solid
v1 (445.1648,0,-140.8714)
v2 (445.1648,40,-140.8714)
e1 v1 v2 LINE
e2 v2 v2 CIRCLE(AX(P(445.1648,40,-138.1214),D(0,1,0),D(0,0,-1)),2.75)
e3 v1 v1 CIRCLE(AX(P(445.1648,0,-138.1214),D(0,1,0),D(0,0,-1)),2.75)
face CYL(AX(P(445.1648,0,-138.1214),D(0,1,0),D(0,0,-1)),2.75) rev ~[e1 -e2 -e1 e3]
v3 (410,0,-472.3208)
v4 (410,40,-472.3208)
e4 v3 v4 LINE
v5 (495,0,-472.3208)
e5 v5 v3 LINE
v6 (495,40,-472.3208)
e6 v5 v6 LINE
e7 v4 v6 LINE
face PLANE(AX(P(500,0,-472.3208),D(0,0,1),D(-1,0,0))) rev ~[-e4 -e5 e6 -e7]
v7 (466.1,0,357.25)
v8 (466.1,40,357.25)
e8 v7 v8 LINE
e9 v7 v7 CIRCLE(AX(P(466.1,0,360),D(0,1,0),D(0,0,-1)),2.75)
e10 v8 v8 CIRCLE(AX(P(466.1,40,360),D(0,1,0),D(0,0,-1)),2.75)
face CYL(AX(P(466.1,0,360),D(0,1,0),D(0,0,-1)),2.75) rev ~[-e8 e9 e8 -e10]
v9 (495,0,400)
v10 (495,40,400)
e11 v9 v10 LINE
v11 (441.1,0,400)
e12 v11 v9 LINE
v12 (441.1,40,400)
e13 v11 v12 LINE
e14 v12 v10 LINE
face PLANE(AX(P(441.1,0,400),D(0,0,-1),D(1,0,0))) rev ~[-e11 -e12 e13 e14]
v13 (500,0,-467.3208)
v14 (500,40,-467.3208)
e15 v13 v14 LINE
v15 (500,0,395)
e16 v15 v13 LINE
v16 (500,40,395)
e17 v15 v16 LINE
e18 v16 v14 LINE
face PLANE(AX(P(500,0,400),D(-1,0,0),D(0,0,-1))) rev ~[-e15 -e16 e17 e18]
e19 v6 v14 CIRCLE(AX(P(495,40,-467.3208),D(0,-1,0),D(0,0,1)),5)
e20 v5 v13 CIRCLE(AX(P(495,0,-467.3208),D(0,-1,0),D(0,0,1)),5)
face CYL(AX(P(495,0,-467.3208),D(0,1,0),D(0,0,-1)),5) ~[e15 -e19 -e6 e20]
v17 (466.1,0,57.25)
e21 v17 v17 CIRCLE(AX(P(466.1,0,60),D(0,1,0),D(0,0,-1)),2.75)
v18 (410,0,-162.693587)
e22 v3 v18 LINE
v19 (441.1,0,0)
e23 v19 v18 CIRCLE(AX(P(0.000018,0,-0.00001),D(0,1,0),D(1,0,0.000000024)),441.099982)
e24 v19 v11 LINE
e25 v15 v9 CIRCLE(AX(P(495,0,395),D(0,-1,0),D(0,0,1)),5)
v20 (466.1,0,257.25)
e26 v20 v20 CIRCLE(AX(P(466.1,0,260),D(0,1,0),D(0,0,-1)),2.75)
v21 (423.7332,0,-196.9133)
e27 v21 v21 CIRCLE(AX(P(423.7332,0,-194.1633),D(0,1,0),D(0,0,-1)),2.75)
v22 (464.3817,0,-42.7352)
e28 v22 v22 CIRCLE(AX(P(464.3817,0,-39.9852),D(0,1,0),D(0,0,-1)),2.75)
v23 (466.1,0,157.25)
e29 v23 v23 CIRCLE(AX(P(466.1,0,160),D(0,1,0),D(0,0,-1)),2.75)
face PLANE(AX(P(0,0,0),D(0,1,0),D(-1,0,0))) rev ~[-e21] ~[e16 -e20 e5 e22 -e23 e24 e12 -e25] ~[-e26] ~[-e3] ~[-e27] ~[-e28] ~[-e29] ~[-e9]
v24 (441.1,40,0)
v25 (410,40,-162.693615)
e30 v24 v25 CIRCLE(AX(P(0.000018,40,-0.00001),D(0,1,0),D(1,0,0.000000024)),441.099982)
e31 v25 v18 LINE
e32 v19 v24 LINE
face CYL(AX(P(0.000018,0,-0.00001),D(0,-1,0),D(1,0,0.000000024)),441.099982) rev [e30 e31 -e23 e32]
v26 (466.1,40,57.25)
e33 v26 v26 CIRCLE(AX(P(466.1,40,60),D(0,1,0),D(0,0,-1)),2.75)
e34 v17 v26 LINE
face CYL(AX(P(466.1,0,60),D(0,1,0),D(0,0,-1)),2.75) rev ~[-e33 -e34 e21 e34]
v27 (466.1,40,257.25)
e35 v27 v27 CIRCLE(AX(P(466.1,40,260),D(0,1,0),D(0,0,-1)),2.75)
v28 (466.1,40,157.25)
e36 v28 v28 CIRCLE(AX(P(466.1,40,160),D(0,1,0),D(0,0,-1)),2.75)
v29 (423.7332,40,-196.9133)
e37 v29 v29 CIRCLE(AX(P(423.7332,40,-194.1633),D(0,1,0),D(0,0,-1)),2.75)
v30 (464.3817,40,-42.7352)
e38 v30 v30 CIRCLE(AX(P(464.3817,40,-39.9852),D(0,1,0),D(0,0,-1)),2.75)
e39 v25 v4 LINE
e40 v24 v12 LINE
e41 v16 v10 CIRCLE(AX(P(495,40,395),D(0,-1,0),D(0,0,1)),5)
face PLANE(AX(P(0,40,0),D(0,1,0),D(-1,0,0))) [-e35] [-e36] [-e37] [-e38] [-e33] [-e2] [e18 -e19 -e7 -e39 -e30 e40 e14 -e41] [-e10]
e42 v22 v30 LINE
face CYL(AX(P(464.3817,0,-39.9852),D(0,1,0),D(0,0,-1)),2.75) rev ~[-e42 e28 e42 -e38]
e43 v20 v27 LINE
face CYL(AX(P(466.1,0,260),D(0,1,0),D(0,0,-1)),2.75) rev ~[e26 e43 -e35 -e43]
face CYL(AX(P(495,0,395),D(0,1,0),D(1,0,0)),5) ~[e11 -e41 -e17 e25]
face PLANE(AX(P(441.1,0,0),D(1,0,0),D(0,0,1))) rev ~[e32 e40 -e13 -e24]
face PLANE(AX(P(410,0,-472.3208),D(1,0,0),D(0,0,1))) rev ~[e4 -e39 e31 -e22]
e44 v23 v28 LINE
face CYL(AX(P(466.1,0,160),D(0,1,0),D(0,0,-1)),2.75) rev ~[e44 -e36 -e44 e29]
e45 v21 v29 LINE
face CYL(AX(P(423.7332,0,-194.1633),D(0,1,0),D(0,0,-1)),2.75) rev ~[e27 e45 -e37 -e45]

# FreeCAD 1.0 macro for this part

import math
import FreeCAD as App
import Part
import Sketcher

V = App.Vector


def edges_at(feature, points):
    """Names of the edges that pass closest to the given points."""
    edges = feature.Shape.Edges
    near = lambda p: min(range(len(edges)), key=lambda i: edges[i].distToShape(Part.Vertex(*p))[0])
    return sorted({f"Edge{near(p) + 1}" for p in points})

doc = App.newDocument("Part")
params = doc.addObject("Spreadsheet::Sheet", "Params")
for row, (alias, value) in enumerate([
    ("sketch1_radius", "441.1 mm"),
    ("sketch1_width", "720 mm"),
    ("sketch1_height", "400 mm"),
    ("pad1_length", "40 mm"),
    ("sketch2_diameter", "5.5 mm"),
    ("hole_diameter", "5.5 mm"),
    ("sketch3_width", "90 mm"),
    ("sketch3_height", "890 mm"),
    ("fillet_radius", "5 mm"),
], start=1):
    params.set(f"A{row}", alias)
    params.set(f"B{row}", "=" + value)
    params.setAlias(f"B{row}", alias)

body = doc.addObject("PartDesign::Body", "Body")

# Sketch on XZ plane
sketch1 = body.newObject("Sketcher::SketchObject", "Sketch")
sketch1.AttachmentSupport = (doc.getObject("XZ_Plane"), [""])
sketch1.MapMode = "FlatFace"
sketch1.addGeometry([
    Part.ArcOfCircle(Part.Circle(V(0, 0, 0), V(0, 0, 1), 441.1), math.radians(-119.917542), math.radians(0)),  # 0
    Part.LineSegment(V(441.1, 0, 0), V(441.1, 400, 0)),  # 1
    Part.LineSegment(V(441.1, 400, 0), V(500, 400, 0)),  # 2
    Part.LineSegment(V(500, 400, 0), V(500, -500, 0)),  # 3
    Part.LineSegment(V(500, -500, 0), V(-220, -500, 0)),  # 4
    Part.LineSegment(V(-220, -500, 0), V(-220, -382.3208, 0)),  # 5
], False)
sketch1.addConstraint([
    Sketcher.Constraint("Tangent", 0, 2, 1, 1),
    Sketcher.Constraint("Coincident", 1, 2, 2, 1),
    Sketcher.Constraint("Coincident", 2, 2, 3, 1),
    Sketcher.Constraint("Coincident", 3, 2, 4, 1),
    Sketcher.Constraint("Coincident", 4, 2, 5, 1),
    Sketcher.Constraint("Coincident", 5, 2, 0, 1),
    Sketcher.Constraint("Vertical", 1),
    Sketcher.Constraint("Horizontal", 2),
    Sketcher.Constraint("Vertical", 3),
    Sketcher.Constraint("Horizontal", 4),
    Sketcher.Constraint("Vertical", 5),
    Sketcher.Constraint("Coincident", 0, 3, -1, 1),
    Sketcher.Constraint("Radius", 0, 441.1),
    Sketcher.Constraint("DistanceX", 4, 2, 4, 1, 720.0),
    Sketcher.Constraint("DistanceY", 1, 1, 1, 2, 400.0),
    Sketcher.Constraint("DistanceX", -1, 1, 2, 2, 500.0),
    Sketcher.Constraint("DistanceY", 3, 2, -1, 1, 500.0),
])
sketch1.setExpression("Constraints[12]", "Params.sketch1_radius")
sketch1.setExpression("Constraints[13]", "Params.sketch1_width")
sketch1.setExpression("Constraints[14]", "Params.sketch1_height")
pad1 = body.newObject("PartDesign::Pad", "Pad")
pad1.Profile = sketch1
pad1.setExpression("Length", "Params.pad1_length")
pad1.Reversed = True

# Sketch on XZ plane
sketch2 = body.newObject("Sketcher::SketchObject", "Sketch001")
sketch2.AttachmentSupport = (doc.getObject("XZ_Plane"), [""])
sketch2.MapMode = "FlatFace"
sketch2.addGeometry([
    Part.Circle(V(-200, -421.0098, 0), V(0, 0, 1), 2.75),  # 0
    Part.Circle(V(-156.0243, -439.2102, 0), V(0, 0, 1), 2.75),  # 1
    Part.Circle(V(-58.7462, -462.3831, 0), V(0, 0, 1), 2.75),  # 2
    Part.Circle(V(41.2359, -464.2723, 0), V(0, 0, 1), 2.75),  # 3
    Part.Circle(V(139.32, -444.7911, 0), V(0, 0, 1), 2.75),  # 4
    Part.Circle(V(230.9911, -404.8361, 0), V(0, 0, 1), 2.75),  # 5
    Part.Circle(V(289.0138, -365.6778, 0), V(0, 0, 1), 2.75),  # 6
    Part.Circle(V(326.5218, -332.615, 0), V(0, 0, 1), 2.75),  # 7
    Part.Circle(V(360.2723, -295.7246, 0), V(0, 0, 1), 2.75),  # 8
    Part.Circle(V(389.8771, -255.4312, 0), V(0, 0, 1), 2.75),  # 9
    Part.Circle(V(423.7332, -194.1633, 0), V(0, 0, 1), 2.75),  # 10
    Part.Circle(V(445.1648, -138.1214, 0), V(0, 0, 1), 2.75),  # 11
    Part.Circle(V(464.3817, -39.9852, 0), V(0, 0, 1), 2.75),  # 12
    Part.Circle(V(466.1, 60, 0), V(0, 0, 1), 2.75),  # 13
    Part.Circle(V(466.1, 160, 0), V(0, 0, 1), 2.75),  # 14
    Part.Circle(V(466.1, 260, 0), V(0, 0, 1), 2.75),  # 15
    Part.Circle(V(466.1, 360, 0), V(0, 0, 1), 2.75),  # 16
], False)
sketch2.addConstraint([
    Sketcher.Constraint("Equal", 0, 1),
    Sketcher.Constraint("Equal", 1, 2),
    Sketcher.Constraint("Equal", 2, 3),
    Sketcher.Constraint("Equal", 3, 4),
    Sketcher.Constraint("Equal", 4, 5),
    Sketcher.Constraint("Equal", 5, 6),
    Sketcher.Constraint("Equal", 6, 7),
    Sketcher.Constraint("Equal", 7, 8),
    Sketcher.Constraint("Equal", 8, 9),
    Sketcher.Constraint("Equal", 9, 10),
    Sketcher.Constraint("Equal", 10, 11),
    Sketcher.Constraint("Equal", 11, 12),
    Sketcher.Constraint("Equal", 12, 13),
    Sketcher.Constraint("Equal", 13, 14),
    Sketcher.Constraint("Equal", 14, 15),
    Sketcher.Constraint("Equal", 15, 16),
    Sketcher.Constraint("Vertical", 13, 3, 14, 3),
    Sketcher.Constraint("Vertical", 14, 3, 15, 3),
    Sketcher.Constraint("Vertical", 15, 3, 16, 3),
    Sketcher.Constraint("Diameter", 0, 5.5),
    Sketcher.Constraint("DistanceX", 0, 3, -1, 1, 200.0),
    Sketcher.Constraint("DistanceY", -1, 1, 13, 3, 60.0),
    Sketcher.Constraint("DistanceY", -1, 1, 14, 3, 160.0),
    Sketcher.Constraint("DistanceY", -1, 1, 15, 3, 260.0),
    Sketcher.Constraint("DistanceY", -1, 1, 16, 3, 360.0),
    Sketcher.Constraint("DistanceX", -1, 1, 13, 3, 466.1),
    Sketcher.Constraint("DistanceX", -1, 1, 4, 3, 139.32),
    Sketcher.Constraint("DistanceX", 2, 3, 6, 3, 347.76),
    Sketcher.Constraint("DistanceY", 4, 3, 9, 3, 189.36),
    Sketcher.Constraint("DistanceX", 7, 3, 12, 3, 137.86),
    Sketcher.Constraint("DistanceY", 2, 3, -1, 1, 462.383),
    Sketcher.Constraint("DistanceX", -1, 1, 3, 3, 41.236),
    Sketcher.Constraint("DistanceY", 4, 3, -1, 1, 444.791),
    Sketcher.Constraint("DistanceX", -1, 1, 5, 3, 230.991),
    Sketcher.Constraint("DistanceY", 5, 3, -1, 1, 404.836),
    Sketcher.Constraint("DistanceY", 7, 3, -1, 1, 332.615),
    Sketcher.Constraint("DistanceX", -1, 1, 9, 3, 389.877),
    Sketcher.Constraint("DistanceX", 1, 3, 2, 3, 97.278),
    Sketcher.Constraint("DistanceY", 2, 3, 1, 3, 23.173),
    Sketcher.Constraint("DistanceX", 2, 3, 3, 3, 99.982),
    Sketcher.Constraint("DistanceY", 3, 3, 1, 3, 25.062),
    Sketcher.Constraint("DistanceX", 6, 3, 7, 3, 37.508),
    Sketcher.Constraint("DistanceX", 9, 3, 10, 3, 33.856),
    Sketcher.Constraint("DistanceY", 9, 3, 10, 3, 61.268),
    Sketcher.Constraint("DistanceX", 8, 3, 10, 3, 63.461),
    Sketcher.Constraint("DistanceY", 10, 3, 11, 3, 56.042),
    Sketcher.Constraint("DistanceX", 7, 3, 11, 3, 118.643),
    Sketcher.Constraint("DistanceY", 10, 3, 12, 3, 154.178),
    Sketcher.Constraint("DistanceY", 0, 3, -1, 1, 421.0098),
    Sketcher.Constraint("DistanceY", 6, 3, -1, 1, 365.6778),
    Sketcher.Constraint("DistanceY", 8, 3, -1, 1, 295.7246),
])
sketch2.setExpression("Constraints[19]", "Params.sketch2_diameter")
doc.recompute()
hole = body.newObject("PartDesign::Hole", "Hole")
hole.Profile = sketch2
hole.ThreadType = "None"
hole.setExpression("Diameter", "Params.hole_diameter")
hole.DepthType = "ThroughAll"

# Sketch on XZ plane
sketch3 = body.newObject("Sketcher::SketchObject", "Sketch002")
sketch3.AttachmentSupport = (doc.getObject("XZ_Plane"), [""])
sketch3.MapMode = "FlatFace"
sketch3.addGeometry([
    Part.LineSegment(V(964.0911, 618.3402, 0), V(-562.8742, 618.3402, 0)),  # 0
    Part.LineSegment(V(-562.8742, 618.3402, 0), V(-562.8742, -811.0554, 0)),  # 1
    Part.LineSegment(V(-562.8742, -811.0554, 0), V(964.0911, -811.0554, 0)),  # 2
    Part.LineSegment(V(964.0911, -811.0554, 0), V(964.0911, 618.3402, 0)),  # 3
    Part.LineSegment(V(500, 417.6792, 0), V(500, -472.3208, 0)),  # 4
    Part.LineSegment(V(500, -472.3208, 0), V(410, -472.3208, 0)),  # 5
    Part.LineSegment(V(410, -472.3208, 0), V(410, 417.6792, 0)),  # 6
    Part.LineSegment(V(410, 417.6792, 0), V(500, 417.6792, 0)),  # 7
], False)
sketch3.addConstraint([
    Sketcher.Constraint("Coincident", 0, 2, 1, 1),
    Sketcher.Constraint("Coincident", 1, 2, 2, 1),
    Sketcher.Constraint("Coincident", 2, 2, 3, 1),
    Sketcher.Constraint("Coincident", 3, 2, 0, 1),
    Sketcher.Constraint("Coincident", 4, 2, 5, 1),
    Sketcher.Constraint("Coincident", 5, 2, 6, 1),
    Sketcher.Constraint("Coincident", 6, 2, 7, 1),
    Sketcher.Constraint("Coincident", 7, 2, 4, 1),
    Sketcher.Constraint("Horizontal", 0),
    Sketcher.Constraint("Vertical", 1),
    Sketcher.Constraint("Horizontal", 2),
    Sketcher.Constraint("Vertical", 3),
    Sketcher.Constraint("Vertical", 4),
    Sketcher.Constraint("Horizontal", 5),
    Sketcher.Constraint("Vertical", 6),
    Sketcher.Constraint("Horizontal", 7),
    Sketcher.Constraint("DistanceX", 5, 2, 5, 1, 90.0),
    Sketcher.Constraint("DistanceY", 4, 2, 4, 1, 890.0),
    Sketcher.Constraint("DistanceX", -1, 1, 4, 2, 500.0),
    Sketcher.Constraint("DistanceX", 0, 2, 0, 1, 1526.9653),
    Sketcher.Constraint("DistanceY", 1, 2, 1, 1, 1429.3956),
    Sketcher.Constraint("DistanceX", -1, 1, 2, 2, 964.091),
    Sketcher.Constraint("DistanceY", 4, 2, 3, 2, 1090.661),
    Sketcher.Constraint("DistanceY", -1, 1, 0, 2, 618.3402),
])
sketch3.setExpression("Constraints[16]", "Params.sketch3_width")
sketch3.setExpression("Constraints[17]", "Params.sketch3_height")
pocket1 = body.newObject("PartDesign::Pocket", "Pocket")
pocket1.Profile = sketch3
pocket1.Type = "ThroughAll"
doc.recompute()

fillet = body.newObject("PartDesign::Fillet", "Fillet")
fillet.Base = (pocket1, edges_at(pocket1, [(500, 20, 400), (500, 20, -472.321)]))
fillet.setExpression("Radius", "Params.fillet_radius")

doc.recompute()
